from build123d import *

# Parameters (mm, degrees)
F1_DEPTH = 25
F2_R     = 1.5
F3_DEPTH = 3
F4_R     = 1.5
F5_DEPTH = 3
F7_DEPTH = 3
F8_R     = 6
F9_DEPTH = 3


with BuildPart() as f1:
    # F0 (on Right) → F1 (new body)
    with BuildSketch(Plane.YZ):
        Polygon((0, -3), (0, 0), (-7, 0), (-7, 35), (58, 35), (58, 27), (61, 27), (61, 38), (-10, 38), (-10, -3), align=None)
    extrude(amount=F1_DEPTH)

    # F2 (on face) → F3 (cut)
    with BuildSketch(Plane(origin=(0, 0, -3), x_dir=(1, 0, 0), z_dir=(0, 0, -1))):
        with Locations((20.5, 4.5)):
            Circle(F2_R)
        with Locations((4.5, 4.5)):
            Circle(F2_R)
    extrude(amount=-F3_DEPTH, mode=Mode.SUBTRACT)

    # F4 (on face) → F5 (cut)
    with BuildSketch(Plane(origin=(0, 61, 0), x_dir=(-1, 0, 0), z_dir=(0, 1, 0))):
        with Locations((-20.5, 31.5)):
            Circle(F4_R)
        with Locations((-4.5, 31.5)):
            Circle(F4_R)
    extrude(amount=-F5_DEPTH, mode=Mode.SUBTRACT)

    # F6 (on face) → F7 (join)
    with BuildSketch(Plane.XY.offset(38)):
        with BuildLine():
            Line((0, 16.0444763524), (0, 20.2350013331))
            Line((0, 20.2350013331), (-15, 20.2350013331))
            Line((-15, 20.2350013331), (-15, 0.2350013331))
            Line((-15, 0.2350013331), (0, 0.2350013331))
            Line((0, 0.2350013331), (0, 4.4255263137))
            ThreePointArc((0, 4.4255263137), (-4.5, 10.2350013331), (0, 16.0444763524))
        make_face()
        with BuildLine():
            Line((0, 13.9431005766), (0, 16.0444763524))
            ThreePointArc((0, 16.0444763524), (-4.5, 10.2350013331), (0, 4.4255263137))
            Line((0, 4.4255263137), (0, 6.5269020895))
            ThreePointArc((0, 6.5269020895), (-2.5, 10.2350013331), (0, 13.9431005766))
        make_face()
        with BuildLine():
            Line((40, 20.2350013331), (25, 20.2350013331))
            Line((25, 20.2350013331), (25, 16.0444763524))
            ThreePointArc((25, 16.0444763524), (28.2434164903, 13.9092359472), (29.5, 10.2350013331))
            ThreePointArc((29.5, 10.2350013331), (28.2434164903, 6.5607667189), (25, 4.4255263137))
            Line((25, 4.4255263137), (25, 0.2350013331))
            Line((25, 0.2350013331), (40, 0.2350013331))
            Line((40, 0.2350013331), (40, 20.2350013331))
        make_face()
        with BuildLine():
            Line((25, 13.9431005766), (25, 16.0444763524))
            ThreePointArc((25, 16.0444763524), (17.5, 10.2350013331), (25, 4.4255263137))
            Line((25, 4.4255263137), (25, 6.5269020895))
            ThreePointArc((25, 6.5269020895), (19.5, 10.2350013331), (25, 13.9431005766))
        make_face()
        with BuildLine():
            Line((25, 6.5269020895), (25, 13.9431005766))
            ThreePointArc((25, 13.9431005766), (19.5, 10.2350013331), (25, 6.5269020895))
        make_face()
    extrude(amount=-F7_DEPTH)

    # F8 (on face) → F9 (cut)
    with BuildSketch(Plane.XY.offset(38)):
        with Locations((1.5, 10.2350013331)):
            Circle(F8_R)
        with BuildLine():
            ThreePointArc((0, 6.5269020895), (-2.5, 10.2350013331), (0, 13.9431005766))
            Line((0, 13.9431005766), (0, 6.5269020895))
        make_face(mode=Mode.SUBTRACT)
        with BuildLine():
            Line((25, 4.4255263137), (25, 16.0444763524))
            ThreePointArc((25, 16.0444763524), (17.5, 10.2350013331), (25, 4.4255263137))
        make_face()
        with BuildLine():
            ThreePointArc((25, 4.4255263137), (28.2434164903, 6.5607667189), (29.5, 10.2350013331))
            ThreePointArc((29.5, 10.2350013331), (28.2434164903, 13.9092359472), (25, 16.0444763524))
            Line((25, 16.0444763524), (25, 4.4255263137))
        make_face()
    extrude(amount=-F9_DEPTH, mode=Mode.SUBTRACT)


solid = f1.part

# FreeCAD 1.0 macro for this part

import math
import FreeCAD as App
import Part
import Sketcher
from FreeCAD import Vector
Q = App.Units.Quantity

doc = App.newDocument("Part")
body = doc.addObject("PartDesign::Body", "Body")

# Sketch on YZ plane
sketch1 = body.newObject("Sketcher::SketchObject", "Sketch")
sketch1.AttachmentSupport = (doc.getObject("YZ_Plane"), [""])
sketch1.MapMode = "FlatFace"
sketch1.addGeometry([
    Part.LineSegment(Vector(0, -3, 0), Vector(0, 0, 0)),  # 0
    Part.LineSegment(Vector(0, 0, 0), Vector(-7, 0, 0)),  # 1
    Part.LineSegment(Vector(-7, 0, 0), Vector(-7, 35, 0)),  # 2
    Part.LineSegment(Vector(-7, 35, 0), Vector(58, 35, 0)),  # 3
    Part.LineSegment(Vector(58, 35, 0), Vector(58, 27, 0)),  # 4
    Part.LineSegment(Vector(58, 27, 0), Vector(61, 27, 0)),  # 5
    Part.LineSegment(Vector(61, 27, 0), Vector(61, 38, 0)),  # 6
    Part.LineSegment(Vector(61, 38, 0), Vector(-10, 38, 0)),  # 7
    Part.LineSegment(Vector(-10, 38, 0), Vector(-10, -3, 0)),  # 8
    Part.LineSegment(Vector(-10, -3, 0), Vector(0, -3, 0)),  # 9
], False)
sketch1.addConstraint([
    Sketcher.Constraint("Coincident", 0, 2, 1, 1),
    Sketcher.Constraint("Coincident", 1, 2, 2, 1),
    Sketcher.Constraint("Coincident", 2, 2, 3, 1),
    Sketcher.Constraint("Coincident", 3, 2, 4, 1),
    Sketcher.Constraint("Coincident", 4, 2, 5, 1),
    Sketcher.Constraint("Coincident", 5, 2, 6, 1),
    Sketcher.Constraint("Coincident", 6, 2, 7, 1),
    Sketcher.Constraint("Coincident", 7, 2, 8, 1),
    Sketcher.Constraint("Coincident", 8, 2, 9, 1),
    Sketcher.Constraint("Coincident", 9, 2, 0, 1),
    Sketcher.Constraint("Vertical", 0),
    Sketcher.Constraint("Horizontal", 1),
    Sketcher.Constraint("Vertical", 2),
    Sketcher.Constraint("Horizontal", 3),
    Sketcher.Constraint("Vertical", 4),
    Sketcher.Constraint("Horizontal", 5),
    Sketcher.Constraint("Vertical", 6),
    Sketcher.Constraint("Horizontal", 7),
    Sketcher.Constraint("Vertical", 8),
    Sketcher.Constraint("Horizontal", 9),
    Sketcher.Constraint("Coincident", 0, 2, -1, 1),
    Sketcher.Constraint("Equal", 5, 0),
    Sketcher.Constraint("DistanceX", 1, 2, 1, 1, Q("7 mm")),
    Sketcher.Constraint("DistanceX", 3, 1, 3, 2, Q("65 mm")),
    Sketcher.Constraint("DistanceX", 5, 1, 5, 2, Q("3 mm")),
    Sketcher.Constraint("DistanceX", 7, 2, 7, 1, Q("71 mm")),
    Sketcher.Constraint("DistanceY", 2, 1, 2, 2, Q("35 mm")),
    Sketcher.Constraint("DistanceY", 4, 2, 4, 1, Q("8 mm")),
    Sketcher.Constraint("DistanceY", 6, 1, 6, 2, Q("11 mm")),
])
pad1 = body.newObject("PartDesign::Pad", "Pad")
pad1.Profile = sketch1
pad1.Length = 25

# Sketch on XY plane
sketch2 = body.newObject("Sketcher::SketchObject", "Sketch001")
sketch2.AttachmentSupport = (doc.getObject("XY_Plane"), [""])
sketch2.MapMode = "FlatFace"
sketch2.AttachmentOffset = App.Placement(Vector(0, 0, -3), App.Rotation())
sketch2.addGeometry([
    Part.Circle(Vector(20.5, -4.5, 0), Vector(0, 0, 1), 1.5),
    Part.Circle(Vector(4.5, -4.5, 0), Vector(0, 0, 1), 1.5),
], False)
sketch2.addConstraint([
    Sketcher.Constraint("Equal", 0, 1),
    Sketcher.Constraint("Horizontal", 0, 3, 1, 3),
    Sketcher.Constraint("Diameter", 0, Q("3 mm")),
    Sketcher.Constraint("DistanceX", 1, 3, 0, 3, Q("16 mm")),
    Sketcher.Constraint("DistanceX", -1, 1, 0, 3, Q("20.5 mm")),
    Sketcher.Constraint("DistanceY", 0, 3, -1, 1, Q("4.5 mm")),
])
pocket1 = body.newObject("PartDesign::Pocket", "Pocket")
pocket1.Profile = sketch2
pocket1.Length = 3
pocket1.Reversed = True

# Sketch on XZ plane
sketch3 = body.newObject("Sketcher::SketchObject", "Sketch002")
sketch3.AttachmentSupport = (doc.getObject("XZ_Plane"), [""])
sketch3.MapMode = "FlatFace"
sketch3.AttachmentOffset = App.Placement(Vector(0, 0, -61), App.Rotation())
sketch3.addGeometry([
    Part.Circle(Vector(20.5, 31.5, 0), Vector(0, 0, 1), 1.5),
    Part.Circle(Vector(4.5, 31.5, 0), Vector(0, 0, 1), 1.5),
], False)
sketch3.addConstraint([
    Sketcher.Constraint("Equal", 0, 1),
    Sketcher.Constraint("Horizontal", 0, 3, 1, 3),
    Sketcher.Constraint("Diameter", 0, Q("3 mm")),
    Sketcher.Constraint("DistanceX", 1, 3, 0, 3, Q("16 mm")),
    Sketcher.Constraint("DistanceX", -1, 1, 0, 3, Q("20.5 mm")),
    Sketcher.Constraint("DistanceY", -1, 1, 0, 3, Q("31.5 mm")),
])
pocket2 = body.newObject("PartDesign::Pocket", "Pocket001")
pocket2.Profile = sketch3
pocket2.Length = 3
pocket2.Reversed = True

# Sketch on XY plane
sketch4 = body.newObject("Sketcher::SketchObject", "Sketch003")
sketch4.AttachmentSupport = (doc.getObject("XY_Plane"), [""])
sketch4.MapMode = "FlatFace"
sketch4.AttachmentOffset = App.Placement(Vector(0, 0, 38), App.Rotation())
sketch4.addGeometry([
    Part.LineSegment(Vector(0, 20.235001, 0), Vector(-15, 20.235001, 0)),  # 0
    Part.LineSegment(Vector(-15, 20.235001, 0), Vector(-15, 0.235001, 0)),  # 1
    Part.LineSegment(Vector(-15, 0.235001, 0), Vector(0, 0.235001, 0)),  # 2
    Part.LineSegment(Vector(0, 0.235001, 0), Vector(0, 6.526902, 0)),  # 3
    Part.ArcOfCircle(Part.Circle(Vector(1.5, 10.235001, 0), Vector(0, 0, 1), 4), math.radians(112.024313), math.radians(247.975687)),  # 4
    Part.LineSegment(Vector(0, 13.943101, 0), Vector(0, 20.235001, 0)),  # 5
    Part.LineSegment(Vector(40, 20.235001, 0), Vector(25, 20.235001, 0)),  # 6
    Part.LineSegment(Vector(25, 20.235001, 0), Vector(25, 16.044476, 0)),  # 7
    Part.ArcOfCircle(Part.Circle(Vector(23.5, 10.235001, 0), Vector(0, 0, 1), 6), math.radians(0), math.radians(75.522488)),  # 8
    Part.ArcOfCircle(Part.Circle(Vector(23.5, 10.235001, 0), Vector(0, 0, 1), 6), math.radians(-75.522488), math.radians(0)),  # 9
    Part.LineSegment(Vector(25, 4.425526, 0), Vector(25, 0.235001, 0)),  # 10
    Part.LineSegment(Vector(25, 0.235001, 0), Vector(40, 0.235001, 0)),  # 11
    Part.LineSegment(Vector(40, 0.235001, 0), Vector(40, 20.235001, 0)),  # 12
    Part.ArcOfCircle(Part.Circle(Vector(23.5, 10.235001, 0), Vector(0, 0, 1), 6), math.radians(75.522488), math.radians(284.477512)),  # 13
    Part.LineSegment(Vector(25, 4.425526, 0), Vector(25, 16.044476, 0)),  # 14
], False)
sketch4.addConstraint([
    Sketcher.Constraint("Coincident", 0, 2, 1, 1),
    Sketcher.Constraint("Coincident", 1, 2, 2, 1),
    Sketcher.Constraint("Coincident", 2, 2, 3, 1),
    Sketcher.Constraint("Coincident", 3, 2, 4, 2),
    Sketcher.Constraint("Coincident", 4, 1, 5, 1),
    Sketcher.Constraint("Coincident", 5, 2, 0, 1),
    Sketcher.Constraint("Coincident", 6, 2, 7, 1),
    Sketcher.Constraint("Coincident", 7, 2, 8, 2),
    Sketcher.Constraint("Tangent", 8, 1, 9, 2),
    Sketcher.Constraint("Coincident", 9, 1, 10, 1),
    Sketcher.Constraint("Coincident", 10, 2, 11, 1),
    Sketcher.Constraint("Coincident", 11, 2, 12, 1),
    Sketcher.Constraint("Coincident", 12, 2, 6, 1),
    Sketcher.Constraint("Coincident", 13, 1, 14, 2),
    Sketcher.Constraint("Coincident", 14, 1, 13, 2),
    Sketcher.Constraint("Horizontal", 0),
    Sketcher.Constraint("Vertical", 1),
    Sketcher.Constraint("Horizontal", 2),
    Sketcher.Constraint("Vertical", 3),
    Sketcher.Constraint("Vertical", 5),
    Sketcher.Constraint("Horizontal", 6),
    Sketcher.Constraint("Vertical", 7),
    Sketcher.Constraint("Vertical", 10),
    Sketcher.Constraint("Horizontal", 11),
    Sketcher.Constraint("Vertical", 12),
    Sketcher.Constraint("Vertical", 14),
    Sketcher.Constraint("Coincident", 13, 3, 8, 3),
    Sketcher.Constraint("Coincident", 13, 1, 7, 2),
    Sketcher.Constraint("Coincident", 14, 1, 9, 1),
    Sketcher.Constraint("PointOnObject", 2, 2, -2),
    Sketcher.Constraint("PointOnObject", 4, 1, -2),
    Sketcher.Constraint("Horizontal", 4, 3, 8, 3),
    Sketcher.Constraint("Horizontal", 5, 2, 6, 2),
    Sketcher.Constraint("Horizontal", 13, 3, 8, 1),
    Sketcher.Constraint("Horizontal", 2, 2, 10, 2),
    Sketcher.Constraint("Equal", 2, 6),
    Sketcher.Constraint("Equal", 3, 5),
    Sketcher.Constraint("Radius", 4, Q("4 mm")),
    Sketcher.Constraint("Radius", 8, Q("6 mm")),
    Sketcher.Constraint("DistanceX", 0, 2, 0, 1, Q("15 mm")),
    Sketcher.Constraint("DistanceY", 1, 2, 1, 1, Q("20 mm")),
    Sketcher.Constraint("DistanceX", -1, 1, 6, 2, Q("25 mm")),
    Sketcher.Constraint("DistanceX", 4, 3, 8, 3, Q("22 mm")),
    Sketcher.Constraint("DistanceX", -1, 1, 4, 3, Q("1.5 mm")),
    Sketcher.Constraint("DistanceY", -1, 1, 4, 3, Q("10.235001 mm")),
])
pad2 = body.newObject("PartDesign::Pad", "Pad001")
pad2.Profile = sketch4
pad2.Length = 3
pad2.Reversed = True

# Sketch on XY plane
sketch5 = body.newObject("Sketcher::SketchObject", "Sketch004")
sketch5.AttachmentSupport = (doc.getObject("XY_Plane"), [""])
sketch5.MapMode = "FlatFace"
sketch5.AttachmentOffset = App.Placement(Vector(0, 0, 38), App.Rotation())
sketch5.addGeometry([
    Part.Circle(Vector(1.5, 10.235001, 0), Vector(0, 0, 1), 6),  # 0
    Part.LineSegment(Vector(0, 13.943101, 0), Vector(0, 6.526902, 0)),  # 1
    Part.ArcOfCircle(Part.Circle(Vector(1.5, 10.235001, 0), Vector(0, 0, 1), 4), math.radians(112.024313), math.radians(247.975687)),  # 2
    Part.ArcOfCircle(Part.Circle(Vector(23.5, 10.235001, 0), Vector(0, 0, 1), 6), math.radians(75.522488), math.radians(284.477512)),  # 3
    Part.ArcOfCircle(Part.Circle(Vector(23.5, 10.235001, 0), Vector(0, 0, 1), 6), math.radians(-75.522488), math.radians(0)),  # 4
    Part.ArcOfCircle(Part.Circle(Vector(23.5, 10.235001, 0), Vector(0, 0, 1), 6), math.radians(0), math.radians(75.522488)),  # 5
], False)
sketch5.addConstraint([
    Sketcher.Constraint("Coincident", 1, 1, 2, 1),
    Sketcher.Constraint("Coincident", 2, 2, 1, 2),
    Sketcher.Constraint("Tangent", 3, 2, 4, 1),
    Sketcher.Constraint("Tangent", 4, 2, 5, 1),
    Sketcher.Constraint("Tangent", 5, 2, 3, 1),
    Sketcher.Constraint("Vertical", 1),
    Sketcher.Constraint("Coincident", 2, 3, 0, 3),
    Sketcher.Constraint("Equal", 0, 3),
    Sketcher.Constraint("PointOnObject", 1, 1, -2),
    Sketcher.Constraint("Horizontal", 2, 3, 3, 3),
    Sketcher.Constraint("Horizontal", 5, 3, 4, 2),
    Sketcher.Constraint("Vertical", 3, 2, 5, 2),
    Sketcher.Constraint("Diameter", 0, Q("12 mm")),
    Sketcher.Constraint("Radius", 2, Q("4 mm")),
    Sketcher.Constraint("DistanceX", -1, 1, 3, 2, Q("25 mm")),
    Sketcher.Constraint("DistanceX", 0, 3, 3, 3, Q("22 mm")),
    Sketcher.Constraint("DistanceX", -1, 1, 0, 3, Q("1.5 mm")),
    Sketcher.Constraint("DistanceY", -1, 1, 0, 3, Q("10.235001 mm")),
])
pocket3 = body.newObject("PartDesign::Pocket", "Pocket002")
pocket3.Profile = sketch5
pocket3.Length = 3

doc.recompute()
